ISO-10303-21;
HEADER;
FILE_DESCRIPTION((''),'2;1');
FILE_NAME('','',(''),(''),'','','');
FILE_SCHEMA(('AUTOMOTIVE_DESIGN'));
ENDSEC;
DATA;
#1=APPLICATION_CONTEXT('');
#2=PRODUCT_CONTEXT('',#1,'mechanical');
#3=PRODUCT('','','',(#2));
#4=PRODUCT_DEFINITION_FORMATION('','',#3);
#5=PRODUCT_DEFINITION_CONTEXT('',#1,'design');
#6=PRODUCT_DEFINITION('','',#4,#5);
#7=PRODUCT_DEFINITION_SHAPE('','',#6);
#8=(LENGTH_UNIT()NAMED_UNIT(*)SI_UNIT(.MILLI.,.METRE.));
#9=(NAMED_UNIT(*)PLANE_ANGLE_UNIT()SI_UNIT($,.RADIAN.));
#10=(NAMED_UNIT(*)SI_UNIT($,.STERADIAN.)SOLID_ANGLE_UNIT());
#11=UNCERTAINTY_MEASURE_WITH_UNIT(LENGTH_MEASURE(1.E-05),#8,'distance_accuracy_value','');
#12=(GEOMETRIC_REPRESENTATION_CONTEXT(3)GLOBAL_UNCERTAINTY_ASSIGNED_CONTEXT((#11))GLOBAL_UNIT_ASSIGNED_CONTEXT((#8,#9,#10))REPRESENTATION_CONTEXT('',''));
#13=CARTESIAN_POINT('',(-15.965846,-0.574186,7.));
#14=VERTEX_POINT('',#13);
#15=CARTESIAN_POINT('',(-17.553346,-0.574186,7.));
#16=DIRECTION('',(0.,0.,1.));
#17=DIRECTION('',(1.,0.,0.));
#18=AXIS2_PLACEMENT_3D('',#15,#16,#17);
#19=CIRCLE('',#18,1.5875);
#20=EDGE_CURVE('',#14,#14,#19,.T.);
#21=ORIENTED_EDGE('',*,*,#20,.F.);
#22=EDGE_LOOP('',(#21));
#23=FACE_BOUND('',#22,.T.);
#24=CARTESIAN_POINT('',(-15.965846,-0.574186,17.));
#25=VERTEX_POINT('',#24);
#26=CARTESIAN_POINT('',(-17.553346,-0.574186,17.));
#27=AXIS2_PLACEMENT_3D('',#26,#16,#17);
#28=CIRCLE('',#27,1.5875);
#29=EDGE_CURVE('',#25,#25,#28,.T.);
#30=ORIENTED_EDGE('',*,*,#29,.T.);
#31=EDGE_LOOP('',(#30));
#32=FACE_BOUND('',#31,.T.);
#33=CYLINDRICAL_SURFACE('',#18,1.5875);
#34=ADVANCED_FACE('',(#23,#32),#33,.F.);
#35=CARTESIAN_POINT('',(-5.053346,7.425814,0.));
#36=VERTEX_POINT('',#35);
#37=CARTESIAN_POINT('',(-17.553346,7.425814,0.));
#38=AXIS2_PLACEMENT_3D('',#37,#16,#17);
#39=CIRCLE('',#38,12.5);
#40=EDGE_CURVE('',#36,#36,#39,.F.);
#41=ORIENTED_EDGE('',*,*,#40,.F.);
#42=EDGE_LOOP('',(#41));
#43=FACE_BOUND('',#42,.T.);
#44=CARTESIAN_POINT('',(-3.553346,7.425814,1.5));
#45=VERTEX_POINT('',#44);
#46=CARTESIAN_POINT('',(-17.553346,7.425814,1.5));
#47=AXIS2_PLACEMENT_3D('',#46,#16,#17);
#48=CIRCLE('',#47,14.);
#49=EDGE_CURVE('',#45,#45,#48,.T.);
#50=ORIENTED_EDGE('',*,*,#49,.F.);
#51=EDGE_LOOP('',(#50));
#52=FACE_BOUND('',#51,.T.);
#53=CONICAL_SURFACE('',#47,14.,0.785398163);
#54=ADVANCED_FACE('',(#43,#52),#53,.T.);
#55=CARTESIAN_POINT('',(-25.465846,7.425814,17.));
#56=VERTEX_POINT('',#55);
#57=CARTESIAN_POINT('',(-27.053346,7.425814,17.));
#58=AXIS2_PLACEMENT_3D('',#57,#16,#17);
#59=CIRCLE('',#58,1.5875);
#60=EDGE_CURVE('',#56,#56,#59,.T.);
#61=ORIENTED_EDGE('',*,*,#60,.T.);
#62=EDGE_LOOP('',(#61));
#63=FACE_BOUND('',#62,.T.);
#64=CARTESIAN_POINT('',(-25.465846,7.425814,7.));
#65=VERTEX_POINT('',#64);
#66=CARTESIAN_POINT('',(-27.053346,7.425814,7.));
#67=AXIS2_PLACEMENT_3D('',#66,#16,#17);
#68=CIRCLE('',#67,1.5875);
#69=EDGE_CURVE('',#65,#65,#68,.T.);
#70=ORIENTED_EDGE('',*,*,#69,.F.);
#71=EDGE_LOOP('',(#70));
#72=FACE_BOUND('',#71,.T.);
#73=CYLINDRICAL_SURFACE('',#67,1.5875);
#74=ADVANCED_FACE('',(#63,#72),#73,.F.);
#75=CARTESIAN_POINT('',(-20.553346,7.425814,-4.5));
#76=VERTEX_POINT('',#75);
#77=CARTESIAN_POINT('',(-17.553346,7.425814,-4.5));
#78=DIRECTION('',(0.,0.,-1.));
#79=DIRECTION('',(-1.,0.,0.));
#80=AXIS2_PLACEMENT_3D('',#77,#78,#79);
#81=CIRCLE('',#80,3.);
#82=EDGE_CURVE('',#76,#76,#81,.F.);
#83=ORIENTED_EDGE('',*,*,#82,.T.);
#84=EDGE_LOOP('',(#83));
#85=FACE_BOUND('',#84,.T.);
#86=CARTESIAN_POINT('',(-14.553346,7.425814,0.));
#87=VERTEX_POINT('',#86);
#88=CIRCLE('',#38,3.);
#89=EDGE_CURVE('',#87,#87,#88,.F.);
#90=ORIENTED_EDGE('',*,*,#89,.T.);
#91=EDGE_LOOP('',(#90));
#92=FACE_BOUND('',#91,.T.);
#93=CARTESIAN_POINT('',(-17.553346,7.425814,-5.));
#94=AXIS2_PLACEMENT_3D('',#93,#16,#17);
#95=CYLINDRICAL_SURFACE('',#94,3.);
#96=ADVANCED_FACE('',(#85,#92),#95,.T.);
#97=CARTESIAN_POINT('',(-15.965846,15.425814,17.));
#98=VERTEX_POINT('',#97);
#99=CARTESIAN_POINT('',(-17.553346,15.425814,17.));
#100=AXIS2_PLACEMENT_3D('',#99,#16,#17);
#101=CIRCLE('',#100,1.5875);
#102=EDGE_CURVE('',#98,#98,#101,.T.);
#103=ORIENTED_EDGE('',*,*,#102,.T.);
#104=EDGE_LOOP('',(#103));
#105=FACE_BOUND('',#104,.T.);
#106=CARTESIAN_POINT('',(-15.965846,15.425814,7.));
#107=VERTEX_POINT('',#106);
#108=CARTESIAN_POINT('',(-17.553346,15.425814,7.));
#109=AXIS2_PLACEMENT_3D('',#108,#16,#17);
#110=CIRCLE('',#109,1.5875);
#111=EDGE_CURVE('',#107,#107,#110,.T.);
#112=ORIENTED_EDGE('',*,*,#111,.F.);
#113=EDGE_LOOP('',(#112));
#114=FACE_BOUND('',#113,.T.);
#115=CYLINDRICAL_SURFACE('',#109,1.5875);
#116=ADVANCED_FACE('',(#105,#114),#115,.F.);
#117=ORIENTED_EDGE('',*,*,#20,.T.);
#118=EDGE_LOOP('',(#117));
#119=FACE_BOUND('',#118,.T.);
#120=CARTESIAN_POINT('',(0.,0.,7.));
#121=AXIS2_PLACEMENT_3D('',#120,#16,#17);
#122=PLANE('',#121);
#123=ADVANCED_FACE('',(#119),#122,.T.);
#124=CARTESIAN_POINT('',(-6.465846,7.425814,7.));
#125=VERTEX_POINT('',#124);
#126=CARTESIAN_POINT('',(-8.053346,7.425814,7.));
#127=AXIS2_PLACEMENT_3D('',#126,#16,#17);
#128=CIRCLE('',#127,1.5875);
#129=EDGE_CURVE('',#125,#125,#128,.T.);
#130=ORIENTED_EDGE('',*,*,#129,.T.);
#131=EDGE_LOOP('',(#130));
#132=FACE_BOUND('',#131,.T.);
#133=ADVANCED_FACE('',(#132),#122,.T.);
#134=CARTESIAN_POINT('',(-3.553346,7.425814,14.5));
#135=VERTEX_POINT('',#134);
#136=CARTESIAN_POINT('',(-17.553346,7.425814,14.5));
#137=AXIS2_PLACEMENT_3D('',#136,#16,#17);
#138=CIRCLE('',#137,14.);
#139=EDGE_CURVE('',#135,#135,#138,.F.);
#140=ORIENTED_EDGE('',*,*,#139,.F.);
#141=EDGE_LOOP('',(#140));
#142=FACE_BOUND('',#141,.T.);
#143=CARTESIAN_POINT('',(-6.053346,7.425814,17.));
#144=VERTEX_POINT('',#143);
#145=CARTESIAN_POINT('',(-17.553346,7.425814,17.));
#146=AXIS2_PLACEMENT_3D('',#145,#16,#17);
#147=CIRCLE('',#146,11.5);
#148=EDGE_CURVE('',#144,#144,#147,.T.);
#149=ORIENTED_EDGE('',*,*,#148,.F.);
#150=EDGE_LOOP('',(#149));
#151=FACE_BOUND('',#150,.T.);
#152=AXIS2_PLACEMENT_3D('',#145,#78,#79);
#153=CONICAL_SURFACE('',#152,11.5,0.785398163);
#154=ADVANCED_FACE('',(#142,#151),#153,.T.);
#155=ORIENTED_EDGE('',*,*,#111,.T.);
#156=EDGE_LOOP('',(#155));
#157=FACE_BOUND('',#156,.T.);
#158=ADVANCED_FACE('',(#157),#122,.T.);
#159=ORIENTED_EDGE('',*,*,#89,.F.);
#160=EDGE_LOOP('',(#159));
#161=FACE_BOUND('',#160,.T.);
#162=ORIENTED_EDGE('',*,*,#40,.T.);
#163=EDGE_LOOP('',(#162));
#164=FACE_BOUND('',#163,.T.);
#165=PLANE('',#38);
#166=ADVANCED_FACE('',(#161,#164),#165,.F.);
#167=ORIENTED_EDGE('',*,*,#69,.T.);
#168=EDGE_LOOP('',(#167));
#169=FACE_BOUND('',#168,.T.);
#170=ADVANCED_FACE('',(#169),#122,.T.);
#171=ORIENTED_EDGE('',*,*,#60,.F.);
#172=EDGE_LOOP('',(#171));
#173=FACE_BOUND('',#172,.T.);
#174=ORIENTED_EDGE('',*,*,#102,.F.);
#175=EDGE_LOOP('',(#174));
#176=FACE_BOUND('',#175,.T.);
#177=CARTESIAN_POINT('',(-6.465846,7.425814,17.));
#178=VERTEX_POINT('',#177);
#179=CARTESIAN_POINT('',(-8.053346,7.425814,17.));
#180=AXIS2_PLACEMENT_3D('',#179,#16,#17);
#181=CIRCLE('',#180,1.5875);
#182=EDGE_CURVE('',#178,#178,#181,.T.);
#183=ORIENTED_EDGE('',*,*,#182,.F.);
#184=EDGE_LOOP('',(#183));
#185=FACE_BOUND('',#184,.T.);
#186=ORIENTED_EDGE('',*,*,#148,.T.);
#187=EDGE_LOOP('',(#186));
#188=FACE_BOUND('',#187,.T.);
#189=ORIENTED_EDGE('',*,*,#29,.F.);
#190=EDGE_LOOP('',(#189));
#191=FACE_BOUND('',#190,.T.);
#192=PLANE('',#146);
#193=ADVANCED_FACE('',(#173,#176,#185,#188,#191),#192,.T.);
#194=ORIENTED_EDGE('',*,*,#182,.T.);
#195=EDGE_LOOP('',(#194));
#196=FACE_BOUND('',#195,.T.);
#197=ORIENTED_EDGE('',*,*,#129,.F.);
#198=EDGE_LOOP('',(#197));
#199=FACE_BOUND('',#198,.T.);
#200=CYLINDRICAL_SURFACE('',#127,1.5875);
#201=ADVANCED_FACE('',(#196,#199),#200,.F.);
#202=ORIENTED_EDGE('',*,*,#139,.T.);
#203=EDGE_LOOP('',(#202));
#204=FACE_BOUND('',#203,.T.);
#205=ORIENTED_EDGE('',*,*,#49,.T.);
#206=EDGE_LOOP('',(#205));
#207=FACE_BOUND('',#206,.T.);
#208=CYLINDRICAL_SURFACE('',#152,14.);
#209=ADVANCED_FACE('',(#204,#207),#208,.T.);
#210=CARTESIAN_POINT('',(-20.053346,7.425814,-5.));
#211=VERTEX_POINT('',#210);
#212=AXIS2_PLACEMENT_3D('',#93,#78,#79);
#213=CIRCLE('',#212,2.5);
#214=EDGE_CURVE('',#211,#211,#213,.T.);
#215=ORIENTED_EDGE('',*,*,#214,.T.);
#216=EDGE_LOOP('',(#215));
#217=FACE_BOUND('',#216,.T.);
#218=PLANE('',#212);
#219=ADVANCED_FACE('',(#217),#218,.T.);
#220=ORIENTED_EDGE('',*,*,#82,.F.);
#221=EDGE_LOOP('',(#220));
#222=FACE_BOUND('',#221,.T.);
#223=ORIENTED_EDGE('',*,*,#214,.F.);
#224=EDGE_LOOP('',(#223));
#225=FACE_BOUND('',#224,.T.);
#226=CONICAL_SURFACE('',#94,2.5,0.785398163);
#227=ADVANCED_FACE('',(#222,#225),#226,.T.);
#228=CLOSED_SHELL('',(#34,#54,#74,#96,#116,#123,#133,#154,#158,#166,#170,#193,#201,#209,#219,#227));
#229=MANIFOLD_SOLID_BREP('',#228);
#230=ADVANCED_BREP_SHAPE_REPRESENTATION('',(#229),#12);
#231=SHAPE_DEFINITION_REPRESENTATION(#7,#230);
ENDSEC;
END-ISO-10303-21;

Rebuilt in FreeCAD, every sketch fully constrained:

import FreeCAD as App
import Part
import Sketcher


def edges_at(feature, points):
    """Names of the edges that pass closest to the given points."""
    edges = feature.Shape.Edges
    near = lambda p: min(range(len(edges)), key=lambda i: edges[i].distToShape(Part.Vertex(*p))[0])
    return sorted({f"Edge{near(p) + 1}" for p in points})

doc = App.newDocument("Part")
body = doc.addObject("PartDesign::Body", "Body")

# Sketch on XY plane
sketch1 = body.newObject("Sketcher::SketchObject", "Sketch")
sketch1.AttachmentSupport = (doc.getObject("XY_Plane"), [""])
sketch1.MapMode = "FlatFace"
sketch1.addGeometry(Part.Circle(App.Vector(-17.553346, 7.425814, 0), App.Vector(0, 0, 1), 14), False)
sketch1.addConstraint(Sketcher.Constraint("Diameter", 0, 28.0))
sketch1.addConstraint(Sketcher.Constraint("DistanceX", 0, 3, -1, 1, 17.553346))
sketch1.addConstraint(Sketcher.Constraint("DistanceY", -1, 1, 0, 3, 7.425814))
pad1 = body.newObject("PartDesign::Pad", "Pad")
pad1.Profile = sketch1
pad1.Length = 17

# Sketch on XY plane
sketch2 = body.newObject("Sketcher::SketchObject", "Sketch001")
sketch2.AttachmentSupport = (doc.getObject("XY_Plane"), [""])
sketch2.MapMode = "FlatFace"
sketch2.addGeometry(Part.Circle(App.Vector(-17.553346, 7.425814, 0), App.Vector(0, 0, 1), 3), False)
sketch2.addConstraint(Sketcher.Constraint("Diameter", 0, 6.0))
sketch2.addConstraint(Sketcher.Constraint("DistanceX", 0, 3, -1, 1, 17.553346))
sketch2.addConstraint(Sketcher.Constraint("DistanceY", -1, 1, 0, 3, 7.425814))
pad2 = body.newObject("PartDesign::Pad", "Pad001")
pad2.Profile = sketch2
pad2.Length = 5
pad2.Reversed = True

# Sketch on XY plane
sketch3 = body.newObject("Sketcher::SketchObject", "Sketch002")
sketch3.AttachmentSupport = (doc.getObject("XY_Plane"), [""])
sketch3.MapMode = "FlatFace"
sketch3.AttachmentOffset = App.Placement(App.Vector(0, 0, 17), App.Rotation())
sketch3.addGeometry(Part.Circle(App.Vector(-27.053346, 7.425814, 0), App.Vector(0, 0, 1), 1.5875), False)
sketch3.addGeometry(Part.Circle(App.Vector(-17.553346, -0.574186, 0), App.Vector(0, 0, 1), 1.5875), False)
sketch3.addGeometry(Part.Circle(App.Vector(-8.053346, 7.425814, 0), App.Vector(0, 0, 1), 1.5875), False)
sketch3.addGeometry(Part.Circle(App.Vector(-17.553346, 15.425814, 0), App.Vector(0, 0, 1), 1.5875), False)
sketch3.addConstraint(Sketcher.Constraint("Equal", 0, 1))
sketch3.addConstraint(Sketcher.Constraint("Equal", 1, 2))
sketch3.addConstraint(Sketcher.Constraint("Equal", 2, 3))
sketch3.addConstraint(Sketcher.Constraint("Horizontal", 0, 3, 2, 3))
sketch3.addConstraint(Sketcher.Constraint("Vertical", 1, 3, 3, 3))
sketch3.addConstraint(Sketcher.Constraint("Diameter", 0, 3.175))
sketch3.addConstraint(Sketcher.Constraint("DistanceY", 1, 3, 0, 3, 8.0))
sketch3.addConstraint(Sketcher.Constraint("DistanceX", 0, 3, 2, 3, 19.0))
sketch3.addConstraint(Sketcher.Constraint("DistanceY", 2, 3, 3, 3, 8.0))
sketch3.addConstraint(Sketcher.Constraint("DistanceX", 0, 3, 1, 3, 9.5))
sketch3.addConstraint(Sketcher.Constraint("DistanceX", 0, 3, -1, 1, 27.053346))
sketch3.addConstraint(Sketcher.Constraint("DistanceY", -1, 1, 0, 3, 7.425814))
pocket1 = body.newObject("PartDesign::Pocket", "Pocket")
pocket1.Profile = sketch3
pocket1.Length = 10
doc.recompute()

chamfer = body.newObject("PartDesign::Chamfer", "Chamfer")
chamfer.Base = (pocket1, edges_at(pocket1, [(-31.553, 7.426, 0)]))
chamfer.Size = 1.5
doc.recompute()

chamfer2 = body.newObject("PartDesign::Chamfer", "Chamfer001")
chamfer2.Base = (chamfer, edges_at(chamfer, [(-20.553, 7.426, -5)]))
chamfer2.Size = 0.5
doc.recompute()

chamfer3 = body.newObject("PartDesign::Chamfer", "Chamfer002")
chamfer3.Base = (chamfer2, edges_at(chamfer2, [(-31.553, 7.426, 17)]))
chamfer3.Size = 2.5

doc.recompute()
